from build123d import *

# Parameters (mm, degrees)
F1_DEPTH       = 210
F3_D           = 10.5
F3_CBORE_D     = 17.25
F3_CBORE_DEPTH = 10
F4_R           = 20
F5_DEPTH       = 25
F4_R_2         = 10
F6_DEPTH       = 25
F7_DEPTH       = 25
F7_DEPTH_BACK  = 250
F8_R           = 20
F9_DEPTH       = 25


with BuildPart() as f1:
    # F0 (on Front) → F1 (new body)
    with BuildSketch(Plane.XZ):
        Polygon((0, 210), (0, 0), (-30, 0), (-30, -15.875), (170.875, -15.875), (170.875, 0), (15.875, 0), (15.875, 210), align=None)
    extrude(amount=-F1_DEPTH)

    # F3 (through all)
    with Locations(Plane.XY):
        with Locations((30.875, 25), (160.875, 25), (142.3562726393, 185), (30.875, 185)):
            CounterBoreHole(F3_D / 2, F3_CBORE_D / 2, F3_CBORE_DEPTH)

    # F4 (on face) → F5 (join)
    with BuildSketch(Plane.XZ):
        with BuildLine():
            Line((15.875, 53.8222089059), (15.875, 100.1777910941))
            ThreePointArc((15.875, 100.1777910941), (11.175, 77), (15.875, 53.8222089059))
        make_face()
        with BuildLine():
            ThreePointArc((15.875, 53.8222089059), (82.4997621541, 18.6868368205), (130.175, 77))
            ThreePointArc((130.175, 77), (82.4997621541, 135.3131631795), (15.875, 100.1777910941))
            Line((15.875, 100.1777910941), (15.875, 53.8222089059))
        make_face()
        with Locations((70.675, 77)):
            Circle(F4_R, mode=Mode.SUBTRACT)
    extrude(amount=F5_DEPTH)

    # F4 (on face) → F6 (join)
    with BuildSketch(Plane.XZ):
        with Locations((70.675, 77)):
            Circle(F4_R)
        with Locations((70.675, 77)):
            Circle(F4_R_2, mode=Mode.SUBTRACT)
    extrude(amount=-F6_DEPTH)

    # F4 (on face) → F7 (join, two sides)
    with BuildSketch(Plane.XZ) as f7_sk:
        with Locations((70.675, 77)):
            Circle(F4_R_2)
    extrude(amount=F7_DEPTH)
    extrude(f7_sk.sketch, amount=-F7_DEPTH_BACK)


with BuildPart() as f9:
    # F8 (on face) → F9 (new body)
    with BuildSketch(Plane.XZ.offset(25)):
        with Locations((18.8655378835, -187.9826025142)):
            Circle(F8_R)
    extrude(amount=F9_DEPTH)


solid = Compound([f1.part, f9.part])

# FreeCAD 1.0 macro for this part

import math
import FreeCAD as App
import Part
import Sketcher

V = App.Vector

doc = App.newDocument("Part")
params = doc.addObject("Spreadsheet::Sheet", "Params")
for row, (alias, value) in enumerate([
    ("sketch1_width", "30 mm"),
    ("sketch1_width2", "155 mm"),
    ("sketch1_height", "210 mm"),
    ("pad1_length", "210 mm"),
    ("sketch2_diameter", "10.5 mm"),
    ("hole_diameter", "10.5 mm"),
    ("hole_cbore_diameter", "17.25 mm"),
    ("hole_cbore_depth", "10 mm"),
    ("sketch3_diameter", "40 mm"),
    ("sketch3_radius", "59.5 mm"),
    ("sketch3_width", "54.8 mm"),
    ("pad2_length", "25 mm"),
    ("sketch4_diameter", "40 mm"),
    ("sketch4_diameter2", "20 mm"),
    ("pad3_length", "25 mm"),
    ("sketch5_diameter", "20 mm"),
    ("pad4_length", "25 mm"),
    ("pad4_length2", "250 mm"),
    ("sketch6_diameter", "40 mm"),
    ("pad5_length", "25 mm"),
], start=1):
    params.set(f"A{row}", alias)
    params.set(f"B{row}", "=" + value)
    params.setAlias(f"B{row}", alias)

body = doc.addObject("PartDesign::Body", "Body")
body.AllowCompound = True

# Sketch on XZ plane
sketch1 = body.newObject("Sketcher::SketchObject", "Sketch")
sketch1.AttachmentSupport = (doc.getObject("XZ_Plane"), [""])
sketch1.MapMode = "FlatFace"
sketch1.addGeometry([
    Part.LineSegment(V(0, 210, 0), V(0, 0, 0)),  # 0
    Part.LineSegment(V(0, 0, 0), V(-30, 0, 0)),  # 1
    Part.LineSegment(V(-30, 0, 0), V(-30, -16, 0)),  # 2
    Part.LineSegment(V(-30, -16, 0), V(171, -16, 0)),  # 3
    Part.LineSegment(V(171, -16, 0), V(171, 0, 0)),  # 4
    Part.LineSegment(V(171, 0, 0), V(16, 0, 0)),  # 5
    Part.LineSegment(V(16, 0, 0), V(16, 210, 0)),  # 6
    Part.LineSegment(V(16, 210, 0), V(0, 210, 0)),  # 7
], False)
sketch1.addConstraint([
    Sketcher.Constraint("Coincident", 0, 2, 1, 1),
    Sketcher.Constraint("Coincident", 1, 2, 2, 1),
    Sketcher.Constraint("Coincident", 2, 2, 3, 1),
    Sketcher.Constraint("Coincident", 3, 2, 4, 1),
    Sketcher.Constraint("Coincident", 4, 2, 5, 1),
    Sketcher.Constraint("Coincident", 5, 2, 6, 1),
    Sketcher.Constraint("Coincident", 6, 2, 7, 1),
    Sketcher.Constraint("Coincident", 7, 2, 0, 1),
    Sketcher.Constraint("Vertical", 0),
    Sketcher.Constraint("Horizontal", 1),
    Sketcher.Constraint("Vertical", 2),
    Sketcher.Constraint("Horizontal", 3),
    Sketcher.Constraint("Vertical", 4),
    Sketcher.Constraint("Horizontal", 5),
    Sketcher.Constraint("Vertical", 6),
    Sketcher.Constraint("Horizontal", 7),
    Sketcher.Constraint("Coincident", 0, 2, -1, 1),
    Sketcher.Constraint("PointOnObject", 4, 2, -1),
    Sketcher.Constraint("Equal", 7, 2),
    Sketcher.Constraint("DistanceX", 1, 2, 1, 1, 30.0),
    Sketcher.Constraint("DistanceX", 5, 2, 5, 1, 155.0),
    Sketcher.Constraint("DistanceY", 0, 2, 0, 1, 210.0),
    Sketcher.Constraint("DistanceX", 3, 1, 3, 2, 200.875),
])
sketch1.setExpression("Constraints[19]", "Params.sketch1_width")
sketch1.setExpression("Constraints[20]", "Params.sketch1_width2")
sketch1.setExpression("Constraints[21]", "Params.sketch1_height")
pad1 = body.newObject("PartDesign::Pad", "Pad")
pad1.Profile = sketch1
pad1.setExpression("Length", "Params.pad1_length")
pad1.Reversed = True

# Sketch on XY plane
sketch2 = body.newObject("Sketcher::SketchObject", "Sketch001")
sketch2.AttachmentSupport = (doc.getObject("XY_Plane"), [""])
sketch2.MapMode = "FlatFace"
sketch2.addGeometry([
    Part.Circle(V(31, 25, 0), V(0, 0, 1), 5),
    Part.Circle(V(161, 25, 0), V(0, 0, 1), 5),
    Part.Circle(V(142, 185, 0), V(0, 0, 1), 5),
    Part.Circle(V(31, 185, 0), V(0, 0, 1), 5),
], False)
sketch2.addConstraint([
    Sketcher.Constraint("Equal", 0, 1),
    Sketcher.Constraint("Equal", 1, 2),
    Sketcher.Constraint("Equal", 2, 3),
    Sketcher.Constraint("Horizontal", 0, 3, 1, 3),
    Sketcher.Constraint("Horizontal", 2, 3, 3, 3),
    Sketcher.Constraint("Vertical", 0, 3, 3, 3),
    Sketcher.Constraint("Diameter", 0, 10.5),
    Sketcher.Constraint("DistanceY", -1, 1, 0, 3, 25.0),
    Sketcher.Constraint("DistanceY", -1, 1, 2, 3, 185.0),
    Sketcher.Constraint("DistanceX", 0, 3, 1, 3, 130.0),
    Sketcher.Constraint("DistanceX", -1, 1, 0, 3, 30.875),
    Sketcher.Constraint("DistanceX", -1, 1, 2, 3, 142.356273),
])
sketch2.setExpression("Constraints[6]", "Params.sketch2_diameter")
doc.recompute()
hole = body.newObject("PartDesign::Hole", "Hole")
hole.Profile = sketch2
hole.ThreadType = "None"
hole.setExpression("Diameter", "Params.hole_diameter")
hole.DepthType = "ThroughAll"
hole.HoleCutType = "Counterbore"
hole.setExpression("HoleCutDiameter", "Params.hole_cbore_diameter")
hole.setExpression("HoleCutDepth", "Params.hole_cbore_depth")

# Sketch on XZ plane
sketch3 = body.newObject("Sketcher::SketchObject", "Sketch002")
sketch3.AttachmentSupport = (doc.getObject("XZ_Plane"), [""])
sketch3.MapMode = "FlatFace"
sketch3.addGeometry([
    Part.ArcOfCircle(Part.Circle(V(71, 77, 0), V(0, 0, 1), 60), math.radians(157), math.radians(203)),
    Part.ArcOfCircle(Part.Circle(V(71, 77, 0), V(0, 0, 1), 60), math.radians(-157), math.radians(157)),
    Part.Circle(V(71, 77, 0), V(0, 0, 1), 20),
], False)
sketch3.addConstraint([
    Sketcher.Constraint("Tangent", 0, 1, 1, 2),
    Sketcher.Constraint("Coincident", 1, 1, 0, 2),
    Sketcher.Constraint("Coincident", 2, 3, 0, 3),
    Sketcher.Constraint("Vertical", 0, 1, 1, 1),
    Sketcher.Constraint("Diameter", 2, 40.0),
    Sketcher.Constraint("Radius", 0, 59.5),
    Sketcher.Constraint("DistanceY", -1, 1, 0, 3, 77.0),
    Sketcher.Constraint("DistanceX", 0, 1, 0, 3, 54.8),
    Sketcher.Constraint("DistanceX", -1, 1, 0, 3, 70.675),
])
sketch3.setExpression("Constraints[4]", "Params.sketch3_diameter")
sketch3.setExpression("Constraints[5]", "Params.sketch3_radius")
sketch3.setExpression("Constraints[7]", "Params.sketch3_width")
pad2 = body.newObject("PartDesign::Pad", "Pad001")
pad2.Profile = sketch3
pad2.setExpression("Length", "Params.pad2_length")

# Sketch on XZ plane
sketch4 = body.newObject("Sketcher::SketchObject", "Sketch003")
sketch4.AttachmentSupport = (doc.getObject("XZ_Plane"), [""])
sketch4.MapMode = "FlatFace"
sketch4.addGeometry([
    Part.Circle(V(71, 77, 0), V(0, 0, 1), 20),
    Part.Circle(V(71, 77, 0), V(0, 0, 1), 10),
], False)
sketch4.addConstraint([
    Sketcher.Constraint("Coincident", 1, 3, 0, 3),
    Sketcher.Constraint("Diameter", 0, 40.0),
    Sketcher.Constraint("Diameter", 1, 20.0),
    Sketcher.Constraint("DistanceY", -1, 1, 0, 3, 77.0),
    Sketcher.Constraint("DistanceX", -1, 1, 0, 3, 70.675),
])
sketch4.setExpression("Constraints[1]", "Params.sketch4_diameter")
sketch4.setExpression("Constraints[2]", "Params.sketch4_diameter2")
pad3 = body.newObject("PartDesign::Pad", "Pad002")
pad3.Profile = sketch4
pad3.setExpression("Length", "Params.pad3_length")
pad3.Reversed = True

# Sketch on XZ plane
sketch5 = body.newObject("Sketcher::SketchObject", "Sketch004")
sketch5.AttachmentSupport = (doc.getObject("XZ_Plane"), [""])
sketch5.MapMode = "FlatFace"
sketch5.addGeometry(Part.Circle(V(71, 77, 0), V(0, 0, 1), 10), False)
sketch5.addConstraint([
    Sketcher.Constraint("Diameter", 0, 20.0),
    Sketcher.Constraint("DistanceY", -1, 1, 0, 3, 77.0),
    Sketcher.Constraint("DistanceX", -1, 1, 0, 3, 70.675),
])
sketch5.setExpression("Constraints[0]", "Params.sketch5_diameter")
pad4 = body.newObject("PartDesign::Pad", "Pad003")
pad4.Profile = sketch5
pad4.Type = "TwoLengths"
pad4.setExpression("Length", "Params.pad4_length")
pad4.setExpression("Length2", "Params.pad4_length2")
body2 = doc.addObject("PartDesign::Body", "Body001")

# Sketch on XZ plane
sketch6 = body2.newObject("Sketcher::SketchObject", "Sketch005")
sketch6.AttachmentSupport = (doc.getObject("XZ_Plane001"), [""])
sketch6.MapMode = "FlatFace"
sketch6.AttachmentOffset = App.Placement(V(0, 0, 25), App.Rotation())
sketch6.addGeometry(Part.Circle(V(19, -188, 0), V(0, 0, 1), 20), False)
sketch6.addConstraint([
    Sketcher.Constraint("Diameter", 0, 40.0),
    Sketcher.Constraint("DistanceX", -1, 1, 0, 3, 18.865538),
    Sketcher.Constraint("DistanceY", 0, 3, -1, 1, 187.982603),
])
sketch6.setExpression("Constraints[0]", "Params.sketch6_diameter")
pad5 = body2.newObject("PartDesign::Pad", "Pad004")
pad5.Profile = sketch6
pad5.setExpression("Length", "Params.pad5_length")

doc.recompute()
